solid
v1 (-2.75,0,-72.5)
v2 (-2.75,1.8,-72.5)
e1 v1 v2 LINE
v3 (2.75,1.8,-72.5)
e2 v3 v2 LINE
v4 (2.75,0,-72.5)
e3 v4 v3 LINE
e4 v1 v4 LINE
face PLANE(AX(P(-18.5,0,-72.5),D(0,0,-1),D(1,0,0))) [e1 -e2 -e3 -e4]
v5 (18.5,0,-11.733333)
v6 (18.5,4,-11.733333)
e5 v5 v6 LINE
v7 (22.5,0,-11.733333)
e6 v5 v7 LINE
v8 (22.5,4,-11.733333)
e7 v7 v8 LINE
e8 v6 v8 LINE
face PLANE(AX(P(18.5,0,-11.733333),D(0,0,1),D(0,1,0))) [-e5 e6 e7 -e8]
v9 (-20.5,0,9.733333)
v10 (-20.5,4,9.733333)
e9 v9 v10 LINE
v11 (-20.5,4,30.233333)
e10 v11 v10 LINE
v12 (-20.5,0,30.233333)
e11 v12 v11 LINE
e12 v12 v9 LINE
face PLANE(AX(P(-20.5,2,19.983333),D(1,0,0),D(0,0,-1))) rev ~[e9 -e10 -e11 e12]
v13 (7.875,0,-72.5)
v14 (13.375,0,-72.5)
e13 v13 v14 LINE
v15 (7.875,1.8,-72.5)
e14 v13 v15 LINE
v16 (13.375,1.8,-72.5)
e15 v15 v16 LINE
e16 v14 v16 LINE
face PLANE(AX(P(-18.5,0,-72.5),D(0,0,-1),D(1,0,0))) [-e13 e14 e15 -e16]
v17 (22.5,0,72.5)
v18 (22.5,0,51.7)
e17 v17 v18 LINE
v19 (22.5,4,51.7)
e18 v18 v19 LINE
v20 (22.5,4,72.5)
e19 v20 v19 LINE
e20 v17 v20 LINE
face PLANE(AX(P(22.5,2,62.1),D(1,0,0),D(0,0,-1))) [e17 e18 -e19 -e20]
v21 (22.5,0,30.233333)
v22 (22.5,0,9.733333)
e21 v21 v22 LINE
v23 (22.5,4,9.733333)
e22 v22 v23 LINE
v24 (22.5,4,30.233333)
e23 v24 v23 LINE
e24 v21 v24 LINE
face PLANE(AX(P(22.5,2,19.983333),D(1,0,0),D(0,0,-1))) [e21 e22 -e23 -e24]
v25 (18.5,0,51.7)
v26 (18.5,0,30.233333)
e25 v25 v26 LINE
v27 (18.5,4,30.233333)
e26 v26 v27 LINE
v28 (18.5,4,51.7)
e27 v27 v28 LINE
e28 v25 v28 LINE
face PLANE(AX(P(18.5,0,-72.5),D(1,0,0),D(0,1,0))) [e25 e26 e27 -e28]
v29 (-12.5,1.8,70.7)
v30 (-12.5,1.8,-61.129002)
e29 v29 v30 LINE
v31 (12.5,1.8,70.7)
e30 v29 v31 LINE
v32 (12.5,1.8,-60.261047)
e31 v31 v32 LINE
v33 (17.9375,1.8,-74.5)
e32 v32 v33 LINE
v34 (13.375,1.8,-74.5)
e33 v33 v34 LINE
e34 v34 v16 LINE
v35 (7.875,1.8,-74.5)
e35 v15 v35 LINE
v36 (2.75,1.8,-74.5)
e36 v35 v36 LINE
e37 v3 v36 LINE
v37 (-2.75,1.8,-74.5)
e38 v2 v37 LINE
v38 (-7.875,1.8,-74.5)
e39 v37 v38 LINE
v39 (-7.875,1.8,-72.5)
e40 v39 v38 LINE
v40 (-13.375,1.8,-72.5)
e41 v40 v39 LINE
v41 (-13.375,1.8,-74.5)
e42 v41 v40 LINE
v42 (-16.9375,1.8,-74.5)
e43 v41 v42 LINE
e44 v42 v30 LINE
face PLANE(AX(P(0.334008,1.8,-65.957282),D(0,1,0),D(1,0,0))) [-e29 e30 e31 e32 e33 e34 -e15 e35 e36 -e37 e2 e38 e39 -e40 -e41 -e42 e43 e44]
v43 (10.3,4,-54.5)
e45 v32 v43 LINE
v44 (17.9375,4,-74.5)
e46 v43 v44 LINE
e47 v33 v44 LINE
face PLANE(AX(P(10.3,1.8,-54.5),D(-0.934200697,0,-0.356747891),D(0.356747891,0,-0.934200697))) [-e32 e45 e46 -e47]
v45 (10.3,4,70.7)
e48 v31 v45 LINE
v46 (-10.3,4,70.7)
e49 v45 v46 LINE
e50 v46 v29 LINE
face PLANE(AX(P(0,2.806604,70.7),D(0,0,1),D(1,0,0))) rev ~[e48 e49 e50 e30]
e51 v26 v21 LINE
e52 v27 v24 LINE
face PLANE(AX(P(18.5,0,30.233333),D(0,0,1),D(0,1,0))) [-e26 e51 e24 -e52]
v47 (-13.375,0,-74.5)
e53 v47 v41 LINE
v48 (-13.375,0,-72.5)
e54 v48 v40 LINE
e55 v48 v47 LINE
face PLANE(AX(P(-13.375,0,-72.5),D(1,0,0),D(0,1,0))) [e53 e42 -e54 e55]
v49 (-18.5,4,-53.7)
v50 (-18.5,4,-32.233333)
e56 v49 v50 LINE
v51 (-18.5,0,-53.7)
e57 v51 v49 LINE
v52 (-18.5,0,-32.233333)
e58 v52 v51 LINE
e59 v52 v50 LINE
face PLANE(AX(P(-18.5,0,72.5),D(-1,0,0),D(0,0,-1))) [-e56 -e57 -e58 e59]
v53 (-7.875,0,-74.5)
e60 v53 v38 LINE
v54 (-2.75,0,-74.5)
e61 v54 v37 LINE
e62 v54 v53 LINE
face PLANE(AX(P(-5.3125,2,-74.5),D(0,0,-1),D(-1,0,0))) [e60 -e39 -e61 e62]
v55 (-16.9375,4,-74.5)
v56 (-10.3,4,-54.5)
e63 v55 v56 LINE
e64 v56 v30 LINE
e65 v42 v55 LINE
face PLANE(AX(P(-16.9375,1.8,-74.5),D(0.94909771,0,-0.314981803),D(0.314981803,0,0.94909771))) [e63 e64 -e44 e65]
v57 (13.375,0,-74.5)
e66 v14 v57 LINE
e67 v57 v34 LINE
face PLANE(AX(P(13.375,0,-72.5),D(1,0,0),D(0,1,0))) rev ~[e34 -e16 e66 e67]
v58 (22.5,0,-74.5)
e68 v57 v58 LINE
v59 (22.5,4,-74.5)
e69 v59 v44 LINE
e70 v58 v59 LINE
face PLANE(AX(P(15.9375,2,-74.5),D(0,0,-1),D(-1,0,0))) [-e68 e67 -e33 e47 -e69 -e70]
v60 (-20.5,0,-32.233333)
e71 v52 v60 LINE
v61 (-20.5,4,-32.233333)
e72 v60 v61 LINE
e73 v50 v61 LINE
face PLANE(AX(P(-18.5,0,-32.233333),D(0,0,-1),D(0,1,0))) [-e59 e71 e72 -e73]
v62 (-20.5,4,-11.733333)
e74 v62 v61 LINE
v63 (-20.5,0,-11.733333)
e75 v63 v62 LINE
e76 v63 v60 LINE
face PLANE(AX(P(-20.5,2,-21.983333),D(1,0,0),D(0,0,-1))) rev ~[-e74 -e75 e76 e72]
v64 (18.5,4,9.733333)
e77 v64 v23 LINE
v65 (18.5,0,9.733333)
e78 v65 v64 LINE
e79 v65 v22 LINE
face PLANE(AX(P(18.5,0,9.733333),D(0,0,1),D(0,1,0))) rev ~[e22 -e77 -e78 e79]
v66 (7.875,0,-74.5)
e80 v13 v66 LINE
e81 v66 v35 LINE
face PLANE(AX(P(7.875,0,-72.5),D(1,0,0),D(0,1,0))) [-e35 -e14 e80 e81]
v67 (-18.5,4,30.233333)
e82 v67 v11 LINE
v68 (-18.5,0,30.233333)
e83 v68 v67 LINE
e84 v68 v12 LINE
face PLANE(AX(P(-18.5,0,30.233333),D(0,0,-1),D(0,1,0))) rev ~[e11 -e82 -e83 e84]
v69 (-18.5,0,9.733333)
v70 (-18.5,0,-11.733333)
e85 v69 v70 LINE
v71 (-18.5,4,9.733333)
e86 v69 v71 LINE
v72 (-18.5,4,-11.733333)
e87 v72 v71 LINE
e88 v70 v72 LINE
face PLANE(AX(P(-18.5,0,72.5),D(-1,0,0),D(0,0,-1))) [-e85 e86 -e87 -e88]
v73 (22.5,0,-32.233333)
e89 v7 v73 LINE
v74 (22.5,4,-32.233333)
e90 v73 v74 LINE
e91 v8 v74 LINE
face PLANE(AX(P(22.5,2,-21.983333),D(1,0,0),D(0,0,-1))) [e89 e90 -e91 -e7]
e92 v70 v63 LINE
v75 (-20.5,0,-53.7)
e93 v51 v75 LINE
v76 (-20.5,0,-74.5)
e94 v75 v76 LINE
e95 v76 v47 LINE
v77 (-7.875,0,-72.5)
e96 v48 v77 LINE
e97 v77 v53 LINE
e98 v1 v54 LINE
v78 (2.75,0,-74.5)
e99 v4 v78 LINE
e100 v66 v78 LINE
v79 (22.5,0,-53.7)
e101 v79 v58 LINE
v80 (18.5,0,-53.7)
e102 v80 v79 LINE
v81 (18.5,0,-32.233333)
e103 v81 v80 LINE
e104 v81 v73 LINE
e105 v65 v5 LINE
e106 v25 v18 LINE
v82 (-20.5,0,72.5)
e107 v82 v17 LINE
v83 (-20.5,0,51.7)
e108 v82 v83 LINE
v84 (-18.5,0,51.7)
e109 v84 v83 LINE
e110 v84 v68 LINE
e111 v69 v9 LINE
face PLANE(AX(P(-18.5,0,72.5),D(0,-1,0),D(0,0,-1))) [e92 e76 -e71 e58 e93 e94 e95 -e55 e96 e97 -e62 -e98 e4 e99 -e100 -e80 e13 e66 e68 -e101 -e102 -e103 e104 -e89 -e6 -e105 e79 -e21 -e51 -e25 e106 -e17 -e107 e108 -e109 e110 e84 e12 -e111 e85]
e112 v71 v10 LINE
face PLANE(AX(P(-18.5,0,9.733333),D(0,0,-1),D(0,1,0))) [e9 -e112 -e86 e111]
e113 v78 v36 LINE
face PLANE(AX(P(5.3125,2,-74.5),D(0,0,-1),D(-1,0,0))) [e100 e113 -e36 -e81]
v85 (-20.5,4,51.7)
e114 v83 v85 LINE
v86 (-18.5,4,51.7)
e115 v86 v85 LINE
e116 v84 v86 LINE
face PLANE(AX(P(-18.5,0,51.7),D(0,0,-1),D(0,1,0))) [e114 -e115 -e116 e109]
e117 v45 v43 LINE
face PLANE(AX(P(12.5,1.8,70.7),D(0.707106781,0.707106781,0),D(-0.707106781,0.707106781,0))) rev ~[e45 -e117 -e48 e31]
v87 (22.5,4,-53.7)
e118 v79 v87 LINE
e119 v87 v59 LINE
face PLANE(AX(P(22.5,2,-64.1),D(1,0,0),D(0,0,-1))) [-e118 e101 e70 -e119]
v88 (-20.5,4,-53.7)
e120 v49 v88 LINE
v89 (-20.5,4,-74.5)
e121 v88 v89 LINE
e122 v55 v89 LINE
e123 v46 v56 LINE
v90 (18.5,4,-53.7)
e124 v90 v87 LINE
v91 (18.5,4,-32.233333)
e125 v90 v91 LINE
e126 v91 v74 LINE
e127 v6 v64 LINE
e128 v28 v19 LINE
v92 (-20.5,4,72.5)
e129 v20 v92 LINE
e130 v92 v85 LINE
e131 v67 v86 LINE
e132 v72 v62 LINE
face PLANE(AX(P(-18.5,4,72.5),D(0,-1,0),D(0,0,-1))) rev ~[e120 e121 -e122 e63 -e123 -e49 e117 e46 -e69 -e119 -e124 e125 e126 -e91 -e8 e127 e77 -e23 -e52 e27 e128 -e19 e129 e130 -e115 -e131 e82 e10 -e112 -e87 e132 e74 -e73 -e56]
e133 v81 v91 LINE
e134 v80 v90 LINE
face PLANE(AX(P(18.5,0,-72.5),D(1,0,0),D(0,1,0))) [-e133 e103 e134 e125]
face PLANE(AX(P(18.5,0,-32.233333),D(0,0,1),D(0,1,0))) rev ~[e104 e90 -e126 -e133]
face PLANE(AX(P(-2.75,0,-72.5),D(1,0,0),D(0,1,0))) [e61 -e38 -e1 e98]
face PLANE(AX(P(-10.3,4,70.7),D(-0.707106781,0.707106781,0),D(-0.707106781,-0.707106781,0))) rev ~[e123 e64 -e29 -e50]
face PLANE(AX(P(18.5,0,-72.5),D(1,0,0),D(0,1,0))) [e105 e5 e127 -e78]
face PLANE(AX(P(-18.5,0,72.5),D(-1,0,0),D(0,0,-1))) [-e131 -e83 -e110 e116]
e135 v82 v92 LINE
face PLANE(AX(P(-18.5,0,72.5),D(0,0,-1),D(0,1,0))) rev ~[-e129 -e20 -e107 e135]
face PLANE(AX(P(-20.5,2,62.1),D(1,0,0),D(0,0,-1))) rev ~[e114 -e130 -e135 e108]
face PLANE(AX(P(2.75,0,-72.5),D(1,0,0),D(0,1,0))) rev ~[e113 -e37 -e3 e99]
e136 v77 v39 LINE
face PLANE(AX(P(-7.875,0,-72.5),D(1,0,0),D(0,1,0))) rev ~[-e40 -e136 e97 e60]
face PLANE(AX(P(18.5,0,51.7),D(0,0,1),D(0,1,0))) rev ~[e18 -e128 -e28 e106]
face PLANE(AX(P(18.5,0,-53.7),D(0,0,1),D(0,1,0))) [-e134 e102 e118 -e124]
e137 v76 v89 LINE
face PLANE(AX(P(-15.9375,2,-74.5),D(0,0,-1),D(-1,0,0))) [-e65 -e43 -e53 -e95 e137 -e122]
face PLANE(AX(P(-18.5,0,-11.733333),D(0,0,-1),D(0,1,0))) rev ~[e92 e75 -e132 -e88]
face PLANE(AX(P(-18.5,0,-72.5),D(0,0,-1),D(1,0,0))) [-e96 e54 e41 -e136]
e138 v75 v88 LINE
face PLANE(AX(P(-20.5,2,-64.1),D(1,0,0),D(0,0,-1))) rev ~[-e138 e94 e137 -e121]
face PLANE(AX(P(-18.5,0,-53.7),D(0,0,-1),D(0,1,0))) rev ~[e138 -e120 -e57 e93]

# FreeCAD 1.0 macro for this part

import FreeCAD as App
import Part
import Sketcher
from FreeCAD import Vector


def add_polygon(sketch, points):
    """Adds a closed chain of lines whose ends are joined by coincident constraints."""
    first, n = sketch.GeometryCount, len(points)
    for a, b in zip(points, points[1:] + points[:1]):
        sketch.addGeometry(Part.LineSegment(App.Vector(*a, 0), App.Vector(*b, 0)), False)
    for i in range(n):
        sketch.addConstraint(Sketcher.Constraint("Coincident", first + i, 2, first + (i + 1) % n, 1))

doc = App.newDocument("Part")
body = doc.addObject("PartDesign::Body", "Body")

# Sketch on XZ plane
sketch1 = doc.addObject("Sketcher::SketchObject", "Sketch")
body.addObject(sketch1)
sketch1.AttachmentSupport = (doc.XZ_Plane, [""])
sketch1.MapMode = "FlatFace"
add_polygon(sketch1, [(-18, -72), (-18, 72), (18, 72), (18, -72)])  # lines 0-3
sketch1.addConstraint([
    Sketcher.Constraint("Vertical", 0),
    Sketcher.Constraint("Horizontal", 1),
    Sketcher.Constraint("Vertical", 2),
    Sketcher.Constraint("Horizontal", 3),
    Sketcher.Constraint("Symmetric", 0, 2, 2, 2, -1, 1),
    Sketcher.Constraint("DistanceX", 1, 1, 1, 2, 37.0),
    Sketcher.Constraint("DistanceY", 0, 1, 0, 2, 145.0),
])
pad1 = doc.addObject("PartDesign::Pad", "Pad")
body.addObject(pad1)
pad1.Profile = sketch1
pad1.Length = 4
pad1.Reversed = True

# Sketch on XY plane
sketch2 = doc.addObject("Sketcher::SketchObject", "Sketch001")
body.addObject(sketch2)
sketch2.AttachmentSupport = (doc.XY_Plane, [""])
sketch2.MapMode = "FlatFace"
sketch2.AttachmentOffset = App.Placement(Vector(0, 0, -72.5), App.Rotation())
add_polygon(sketch2, [(18.5, 4), (18.5, 0), (13.4, 0), (13.4, 4)])  # lines 0-3
add_polygon(sketch2, [(7.9, 4), (7.9, 0), (2.8, 0), (2.8, 4)])  # lines 4-7
add_polygon(sketch2, [(-2.8, 4), (-2.8, 0), (-7.9, 0), (-7.9, 4)])  # lines 8-11
add_polygon(sketch2, [(-13.4, 4), (-13.4, 0), (-18.5, 0), (-18.5, 4)])  # lines 12-15
sketch2.addConstraint([
    Sketcher.Constraint("Vertical", 0),
    Sketcher.Constraint("Horizontal", 1),
    Sketcher.Constraint("Vertical", 2),
    Sketcher.Constraint("Horizontal", 3),
    Sketcher.Constraint("Vertical", 4),
    Sketcher.Constraint("Horizontal", 5),
    Sketcher.Constraint("Vertical", 6),
    Sketcher.Constraint("Horizontal", 7),
    Sketcher.Constraint("Vertical", 8),
    Sketcher.Constraint("Horizontal", 9),
    Sketcher.Constraint("Vertical", 10),
    Sketcher.Constraint("Horizontal", 11),
    Sketcher.Constraint("Vertical", 12),
    Sketcher.Constraint("Horizontal", 13),
    Sketcher.Constraint("Vertical", 14),
    Sketcher.Constraint("Horizontal", 15),
    Sketcher.Constraint("Symmetric", 5, 2, 8, 2, -1, 1),
    Sketcher.Constraint("Symmetric", 1, 2, 12, 2, -1, 1),
    Sketcher.Constraint("Symmetric", 4, 2, 9, 2, -2),
    Sketcher.Constraint("Symmetric", 0, 2, 13, 2, -2),
    Sketcher.Constraint("Horizontal", 3, 2, 6, 2),
    Sketcher.Constraint("Horizontal", 7, 2, 10, 2),
    Sketcher.Constraint("Horizontal", 11, 2, 14, 2),
    Sketcher.Constraint("Equal", 3, 5),
    Sketcher.Constraint("DistanceY", 0, 2, 0, 1, 4.0),
    Sketcher.Constraint("DistanceX", -1, 1, 0, 2, 18.5),
    Sketcher.Constraint("DistanceX", 4, 2, 1, 2, 5.5),
    Sketcher.Constraint("DistanceX", 8, 2, 5, 2, 5.5),
])
pad2 = doc.addObject("PartDesign::Pad", "Pad001")
body.addObject(pad2)
pad2.Profile = sketch2
pad2.Length = 2
pad2.Reversed = True

# Sketch on YZ plane
sketch3 = doc.addObject("Sketcher::SketchObject", "Sketch002")
body.addObject(sketch3)
sketch3.AttachmentSupport = (doc.YZ_Plane, [""])
sketch3.MapMode = "FlatFace"
sketch3.AttachmentOffset = App.Placement(Vector(0, 0, 18.5), App.Rotation())
add_polygon(sketch3, [(4, 72.5), (0, 72.5), (0, 51.7), (4, 51.7)])  # lines 0-3
add_polygon(sketch3, [(4, 30.2), (0, 30.2), (0, 9.7), (4, 9.7)])  # lines 4-7
add_polygon(sketch3, [(4, -11.7), (0, -11.7), (0, -32.2), (4, -32.2)])  # lines 8-11
add_polygon(sketch3, [(4, -53.7), (0, -53.7), (0, -74.5), (4, -74.5)])  # lines 12-15
sketch3.addConstraint([
    Sketcher.Constraint("Horizontal", 0),
    Sketcher.Constraint("Vertical", 1),
    Sketcher.Constraint("Horizontal", 2),
    Sketcher.Constraint("Vertical", 3),
    Sketcher.Constraint("Horizontal", 4),
    Sketcher.Constraint("Vertical", 5),
    Sketcher.Constraint("Horizontal", 6),
    Sketcher.Constraint("Vertical", 7),
    Sketcher.Constraint("Horizontal", 8),
    Sketcher.Constraint("Vertical", 9),
    Sketcher.Constraint("Horizontal", 10),
    Sketcher.Constraint("Vertical", 11),
    Sketcher.Constraint("Horizontal", 12),
    Sketcher.Constraint("Vertical", 13),
    Sketcher.Constraint("Horizontal", 14),
    Sketcher.Constraint("Vertical", 15),
    Sketcher.Constraint("PointOnObject", 0, 2, -2),
    Sketcher.Constraint("PointOnObject", 4, 2, -2),
    Sketcher.Constraint("PointOnObject", 8, 2, -2),
    Sketcher.Constraint("PointOnObject", 12, 2, -2),
    Sketcher.Constraint("Vertical", 3, 2, 6, 2),
    Sketcher.Constraint("Vertical", 7, 2, 10, 2),
    Sketcher.Constraint("Vertical", 11, 2, 14, 2),
    Sketcher.Constraint("Equal", 7, 9),
    Sketcher.Constraint("Equal", 3, 13),
    Sketcher.Constraint("DistanceX", 0, 2, 0, 1, 4.0),
    Sketcher.Constraint("DistanceY", 1, 2, 1, 1, 20.8),
    Sketcher.Constraint("DistanceY", 5, 2, 5, 1, 20.5),
    Sketcher.Constraint("DistanceY", -1, 1, 0, 2, 72.5),
    Sketcher.Constraint("DistanceY", 12, 2, -1, 1, 53.7),
    Sketcher.Constraint("DistanceY", -1, 1, 4, 2, 30.233333),
    Sketcher.Constraint("DistanceY", 8, 2, -1, 1, 11.733333),
])
pad3 = doc.addObject("PartDesign::Pad", "Pad002")
body.addObject(pad3)
pad3.Profile = sketch3
pad3.Length = 4

# Sketch on YZ plane
sketch4 = doc.addObject("Sketcher::SketchObject", "Sketch003")
body.addObject(sketch4)
sketch4.AttachmentSupport = (doc.YZ_Plane, [""])
sketch4.MapMode = "FlatFace"
sketch4.AttachmentOffset = App.Placement(Vector(0, 0, -18.5), App.Rotation())
add_polygon(sketch4, [(4, 72.5), (0, 72.5), (0, 51.7), (4, 51.7)])  # lines 0-3
add_polygon(sketch4, [(4, 30.2), (0, 30.2), (0, 9.7), (4, 9.7)])  # lines 4-7
add_polygon(sketch4, [(4, -11.7), (0, -11.7), (0, -32.2), (4, -32.2)])  # lines 8-11
add_polygon(sketch4, [(4, -53.7), (0, -53.7), (0, -74.5), (4, -74.5)])  # lines 12-15
sketch4.addConstraint([
    Sketcher.Constraint("Horizontal", 0),
    Sketcher.Constraint("Vertical", 1),
    Sketcher.Constraint("Horizontal", 2),
    Sketcher.Constraint("Vertical", 3),
    Sketcher.Constraint("Horizontal", 4),
    Sketcher.Constraint("Vertical", 5),
    Sketcher.Constraint("Horizontal", 6),
    Sketcher.Constraint("Vertical", 7),
    Sketcher.Constraint("Horizontal", 8),
    Sketcher.Constraint("Vertical", 9),
    Sketcher.Constraint("Horizontal", 10),
    Sketcher.Constraint("Vertical", 11),
    Sketcher.Constraint("Horizontal", 12),
    Sketcher.Constraint("Vertical", 13),
    Sketcher.Constraint("Horizontal", 14),
    Sketcher.Constraint("Vertical", 15),
    Sketcher.Constraint("PointOnObject", 0, 2, -2),
    Sketcher.Constraint("PointOnObject", 4, 2, -2),
    Sketcher.Constraint("PointOnObject", 8, 2, -2),
    Sketcher.Constraint("PointOnObject", 12, 2, -2),
    Sketcher.Constraint("Vertical", 3, 2, 6, 2),
    Sketcher.Constraint("Vertical", 7, 2, 10, 2),
    Sketcher.Constraint("Vertical", 11, 2, 14, 2),
    Sketcher.Constraint("Equal", 7, 9),
    Sketcher.Constraint("Equal", 3, 13),
    Sketcher.Constraint("DistanceX", 0, 2, 0, 1, 4.0),
    Sketcher.Constraint("DistanceY", 1, 2, 1, 1, 20.8),
    Sketcher.Constraint("DistanceY", 5, 2, 5, 1, 20.5),
    Sketcher.Constraint("DistanceY", -1, 1, 0, 2, 72.5),
    Sketcher.Constraint("DistanceY", 12, 2, -1, 1, 53.7),
    Sketcher.Constraint("DistanceY", -1, 1, 4, 2, 30.233333),
    Sketcher.Constraint("DistanceY", 8, 2, -1, 1, 11.733333),
])
pad4 = doc.addObject("PartDesign::Pad", "Pad003")
body.addObject(pad4)
pad4.Profile = sketch4
pad4.Length = 2
pad4.Reversed = True

# Sketch on XY plane
sketch5 = doc.addObject("Sketcher::SketchObject", "Sketch004")
body.addObject(sketch5)
sketch5.AttachmentSupport = (doc.XY_Plane, [""])
sketch5.MapMode = "FlatFace"
sketch5.AttachmentOffset = App.Placement(Vector(0, 0, 70.7), App.Rotation())
add_polygon(sketch5, [(10.3, 4), (-10.3, 4), (-12.5, 1.8), (12.5, 1.8)])  # lines 0-3
sketch5.addConstraint([
    Sketcher.Constraint("Horizontal", 0),
    Sketcher.Constraint("Horizontal", 2),
    Sketcher.Constraint("Perpendicular", 1, 3),
    Sketcher.Constraint("Equal", 1, 3),
    Sketcher.Constraint("DistanceX", 2, 1, 2, 2, 25.0),
    Sketcher.Constraint("DistanceX", 0, 2, 0, 1, 20.6),
    Sketcher.Constraint("DistanceY", -1, 1, 0, 2, 4.0),
    Sketcher.Constraint("DistanceX", 0, 2, -1, 1, 10.3),
])
pocket1 = doc.addObject("PartDesign::Pocket", "Pocket")
body.addObject(pocket1)
pocket1.Profile = sketch5
pocket1.Type = "ThroughAll"

# Sketch on XZ plane
sketch6 = doc.addObject("Sketcher::SketchObject", "Sketch005")
body.addObject(sketch6)
sketch6.AttachmentSupport = (doc.XZ_Plane, [""])
sketch6.MapMode = "FlatFace"
sketch6.AttachmentOffset = App.Placement(Vector(0, 0, -1.8), App.Rotation())
add_polygon(sketch6, [(-17, -74), (-10, -54), (10, -54), (18, -74)])  # lines 0-3
sketch6.addConstraint([
    Sketcher.Constraint("Horizontal", 1),
    Sketcher.Constraint("Horizontal", 3),
    Sketcher.Constraint("DistanceX", 1, 1, 1, 2, 20.6),
    Sketcher.Constraint("DistanceY", 2, 2, 1, 2, 20.0),
    Sketcher.Constraint("DistanceX", 0, 2, -1, 1, 10.3),
    Sketcher.Constraint("DistanceY", 0, 2, -1, 1, 54.5),
    Sketcher.Constraint("DistanceX", 3, 2, 3, 1, 34.875),
    Sketcher.Constraint("DistanceX", -1, 1, 2, 2, 17.9375),
])
pocket2 = doc.addObject("PartDesign::Pocket", "Pocket001")
body.addObject(pocket2)
pocket2.Profile = sketch6
pocket2.Type = "ThroughAll"

doc.recompute()
